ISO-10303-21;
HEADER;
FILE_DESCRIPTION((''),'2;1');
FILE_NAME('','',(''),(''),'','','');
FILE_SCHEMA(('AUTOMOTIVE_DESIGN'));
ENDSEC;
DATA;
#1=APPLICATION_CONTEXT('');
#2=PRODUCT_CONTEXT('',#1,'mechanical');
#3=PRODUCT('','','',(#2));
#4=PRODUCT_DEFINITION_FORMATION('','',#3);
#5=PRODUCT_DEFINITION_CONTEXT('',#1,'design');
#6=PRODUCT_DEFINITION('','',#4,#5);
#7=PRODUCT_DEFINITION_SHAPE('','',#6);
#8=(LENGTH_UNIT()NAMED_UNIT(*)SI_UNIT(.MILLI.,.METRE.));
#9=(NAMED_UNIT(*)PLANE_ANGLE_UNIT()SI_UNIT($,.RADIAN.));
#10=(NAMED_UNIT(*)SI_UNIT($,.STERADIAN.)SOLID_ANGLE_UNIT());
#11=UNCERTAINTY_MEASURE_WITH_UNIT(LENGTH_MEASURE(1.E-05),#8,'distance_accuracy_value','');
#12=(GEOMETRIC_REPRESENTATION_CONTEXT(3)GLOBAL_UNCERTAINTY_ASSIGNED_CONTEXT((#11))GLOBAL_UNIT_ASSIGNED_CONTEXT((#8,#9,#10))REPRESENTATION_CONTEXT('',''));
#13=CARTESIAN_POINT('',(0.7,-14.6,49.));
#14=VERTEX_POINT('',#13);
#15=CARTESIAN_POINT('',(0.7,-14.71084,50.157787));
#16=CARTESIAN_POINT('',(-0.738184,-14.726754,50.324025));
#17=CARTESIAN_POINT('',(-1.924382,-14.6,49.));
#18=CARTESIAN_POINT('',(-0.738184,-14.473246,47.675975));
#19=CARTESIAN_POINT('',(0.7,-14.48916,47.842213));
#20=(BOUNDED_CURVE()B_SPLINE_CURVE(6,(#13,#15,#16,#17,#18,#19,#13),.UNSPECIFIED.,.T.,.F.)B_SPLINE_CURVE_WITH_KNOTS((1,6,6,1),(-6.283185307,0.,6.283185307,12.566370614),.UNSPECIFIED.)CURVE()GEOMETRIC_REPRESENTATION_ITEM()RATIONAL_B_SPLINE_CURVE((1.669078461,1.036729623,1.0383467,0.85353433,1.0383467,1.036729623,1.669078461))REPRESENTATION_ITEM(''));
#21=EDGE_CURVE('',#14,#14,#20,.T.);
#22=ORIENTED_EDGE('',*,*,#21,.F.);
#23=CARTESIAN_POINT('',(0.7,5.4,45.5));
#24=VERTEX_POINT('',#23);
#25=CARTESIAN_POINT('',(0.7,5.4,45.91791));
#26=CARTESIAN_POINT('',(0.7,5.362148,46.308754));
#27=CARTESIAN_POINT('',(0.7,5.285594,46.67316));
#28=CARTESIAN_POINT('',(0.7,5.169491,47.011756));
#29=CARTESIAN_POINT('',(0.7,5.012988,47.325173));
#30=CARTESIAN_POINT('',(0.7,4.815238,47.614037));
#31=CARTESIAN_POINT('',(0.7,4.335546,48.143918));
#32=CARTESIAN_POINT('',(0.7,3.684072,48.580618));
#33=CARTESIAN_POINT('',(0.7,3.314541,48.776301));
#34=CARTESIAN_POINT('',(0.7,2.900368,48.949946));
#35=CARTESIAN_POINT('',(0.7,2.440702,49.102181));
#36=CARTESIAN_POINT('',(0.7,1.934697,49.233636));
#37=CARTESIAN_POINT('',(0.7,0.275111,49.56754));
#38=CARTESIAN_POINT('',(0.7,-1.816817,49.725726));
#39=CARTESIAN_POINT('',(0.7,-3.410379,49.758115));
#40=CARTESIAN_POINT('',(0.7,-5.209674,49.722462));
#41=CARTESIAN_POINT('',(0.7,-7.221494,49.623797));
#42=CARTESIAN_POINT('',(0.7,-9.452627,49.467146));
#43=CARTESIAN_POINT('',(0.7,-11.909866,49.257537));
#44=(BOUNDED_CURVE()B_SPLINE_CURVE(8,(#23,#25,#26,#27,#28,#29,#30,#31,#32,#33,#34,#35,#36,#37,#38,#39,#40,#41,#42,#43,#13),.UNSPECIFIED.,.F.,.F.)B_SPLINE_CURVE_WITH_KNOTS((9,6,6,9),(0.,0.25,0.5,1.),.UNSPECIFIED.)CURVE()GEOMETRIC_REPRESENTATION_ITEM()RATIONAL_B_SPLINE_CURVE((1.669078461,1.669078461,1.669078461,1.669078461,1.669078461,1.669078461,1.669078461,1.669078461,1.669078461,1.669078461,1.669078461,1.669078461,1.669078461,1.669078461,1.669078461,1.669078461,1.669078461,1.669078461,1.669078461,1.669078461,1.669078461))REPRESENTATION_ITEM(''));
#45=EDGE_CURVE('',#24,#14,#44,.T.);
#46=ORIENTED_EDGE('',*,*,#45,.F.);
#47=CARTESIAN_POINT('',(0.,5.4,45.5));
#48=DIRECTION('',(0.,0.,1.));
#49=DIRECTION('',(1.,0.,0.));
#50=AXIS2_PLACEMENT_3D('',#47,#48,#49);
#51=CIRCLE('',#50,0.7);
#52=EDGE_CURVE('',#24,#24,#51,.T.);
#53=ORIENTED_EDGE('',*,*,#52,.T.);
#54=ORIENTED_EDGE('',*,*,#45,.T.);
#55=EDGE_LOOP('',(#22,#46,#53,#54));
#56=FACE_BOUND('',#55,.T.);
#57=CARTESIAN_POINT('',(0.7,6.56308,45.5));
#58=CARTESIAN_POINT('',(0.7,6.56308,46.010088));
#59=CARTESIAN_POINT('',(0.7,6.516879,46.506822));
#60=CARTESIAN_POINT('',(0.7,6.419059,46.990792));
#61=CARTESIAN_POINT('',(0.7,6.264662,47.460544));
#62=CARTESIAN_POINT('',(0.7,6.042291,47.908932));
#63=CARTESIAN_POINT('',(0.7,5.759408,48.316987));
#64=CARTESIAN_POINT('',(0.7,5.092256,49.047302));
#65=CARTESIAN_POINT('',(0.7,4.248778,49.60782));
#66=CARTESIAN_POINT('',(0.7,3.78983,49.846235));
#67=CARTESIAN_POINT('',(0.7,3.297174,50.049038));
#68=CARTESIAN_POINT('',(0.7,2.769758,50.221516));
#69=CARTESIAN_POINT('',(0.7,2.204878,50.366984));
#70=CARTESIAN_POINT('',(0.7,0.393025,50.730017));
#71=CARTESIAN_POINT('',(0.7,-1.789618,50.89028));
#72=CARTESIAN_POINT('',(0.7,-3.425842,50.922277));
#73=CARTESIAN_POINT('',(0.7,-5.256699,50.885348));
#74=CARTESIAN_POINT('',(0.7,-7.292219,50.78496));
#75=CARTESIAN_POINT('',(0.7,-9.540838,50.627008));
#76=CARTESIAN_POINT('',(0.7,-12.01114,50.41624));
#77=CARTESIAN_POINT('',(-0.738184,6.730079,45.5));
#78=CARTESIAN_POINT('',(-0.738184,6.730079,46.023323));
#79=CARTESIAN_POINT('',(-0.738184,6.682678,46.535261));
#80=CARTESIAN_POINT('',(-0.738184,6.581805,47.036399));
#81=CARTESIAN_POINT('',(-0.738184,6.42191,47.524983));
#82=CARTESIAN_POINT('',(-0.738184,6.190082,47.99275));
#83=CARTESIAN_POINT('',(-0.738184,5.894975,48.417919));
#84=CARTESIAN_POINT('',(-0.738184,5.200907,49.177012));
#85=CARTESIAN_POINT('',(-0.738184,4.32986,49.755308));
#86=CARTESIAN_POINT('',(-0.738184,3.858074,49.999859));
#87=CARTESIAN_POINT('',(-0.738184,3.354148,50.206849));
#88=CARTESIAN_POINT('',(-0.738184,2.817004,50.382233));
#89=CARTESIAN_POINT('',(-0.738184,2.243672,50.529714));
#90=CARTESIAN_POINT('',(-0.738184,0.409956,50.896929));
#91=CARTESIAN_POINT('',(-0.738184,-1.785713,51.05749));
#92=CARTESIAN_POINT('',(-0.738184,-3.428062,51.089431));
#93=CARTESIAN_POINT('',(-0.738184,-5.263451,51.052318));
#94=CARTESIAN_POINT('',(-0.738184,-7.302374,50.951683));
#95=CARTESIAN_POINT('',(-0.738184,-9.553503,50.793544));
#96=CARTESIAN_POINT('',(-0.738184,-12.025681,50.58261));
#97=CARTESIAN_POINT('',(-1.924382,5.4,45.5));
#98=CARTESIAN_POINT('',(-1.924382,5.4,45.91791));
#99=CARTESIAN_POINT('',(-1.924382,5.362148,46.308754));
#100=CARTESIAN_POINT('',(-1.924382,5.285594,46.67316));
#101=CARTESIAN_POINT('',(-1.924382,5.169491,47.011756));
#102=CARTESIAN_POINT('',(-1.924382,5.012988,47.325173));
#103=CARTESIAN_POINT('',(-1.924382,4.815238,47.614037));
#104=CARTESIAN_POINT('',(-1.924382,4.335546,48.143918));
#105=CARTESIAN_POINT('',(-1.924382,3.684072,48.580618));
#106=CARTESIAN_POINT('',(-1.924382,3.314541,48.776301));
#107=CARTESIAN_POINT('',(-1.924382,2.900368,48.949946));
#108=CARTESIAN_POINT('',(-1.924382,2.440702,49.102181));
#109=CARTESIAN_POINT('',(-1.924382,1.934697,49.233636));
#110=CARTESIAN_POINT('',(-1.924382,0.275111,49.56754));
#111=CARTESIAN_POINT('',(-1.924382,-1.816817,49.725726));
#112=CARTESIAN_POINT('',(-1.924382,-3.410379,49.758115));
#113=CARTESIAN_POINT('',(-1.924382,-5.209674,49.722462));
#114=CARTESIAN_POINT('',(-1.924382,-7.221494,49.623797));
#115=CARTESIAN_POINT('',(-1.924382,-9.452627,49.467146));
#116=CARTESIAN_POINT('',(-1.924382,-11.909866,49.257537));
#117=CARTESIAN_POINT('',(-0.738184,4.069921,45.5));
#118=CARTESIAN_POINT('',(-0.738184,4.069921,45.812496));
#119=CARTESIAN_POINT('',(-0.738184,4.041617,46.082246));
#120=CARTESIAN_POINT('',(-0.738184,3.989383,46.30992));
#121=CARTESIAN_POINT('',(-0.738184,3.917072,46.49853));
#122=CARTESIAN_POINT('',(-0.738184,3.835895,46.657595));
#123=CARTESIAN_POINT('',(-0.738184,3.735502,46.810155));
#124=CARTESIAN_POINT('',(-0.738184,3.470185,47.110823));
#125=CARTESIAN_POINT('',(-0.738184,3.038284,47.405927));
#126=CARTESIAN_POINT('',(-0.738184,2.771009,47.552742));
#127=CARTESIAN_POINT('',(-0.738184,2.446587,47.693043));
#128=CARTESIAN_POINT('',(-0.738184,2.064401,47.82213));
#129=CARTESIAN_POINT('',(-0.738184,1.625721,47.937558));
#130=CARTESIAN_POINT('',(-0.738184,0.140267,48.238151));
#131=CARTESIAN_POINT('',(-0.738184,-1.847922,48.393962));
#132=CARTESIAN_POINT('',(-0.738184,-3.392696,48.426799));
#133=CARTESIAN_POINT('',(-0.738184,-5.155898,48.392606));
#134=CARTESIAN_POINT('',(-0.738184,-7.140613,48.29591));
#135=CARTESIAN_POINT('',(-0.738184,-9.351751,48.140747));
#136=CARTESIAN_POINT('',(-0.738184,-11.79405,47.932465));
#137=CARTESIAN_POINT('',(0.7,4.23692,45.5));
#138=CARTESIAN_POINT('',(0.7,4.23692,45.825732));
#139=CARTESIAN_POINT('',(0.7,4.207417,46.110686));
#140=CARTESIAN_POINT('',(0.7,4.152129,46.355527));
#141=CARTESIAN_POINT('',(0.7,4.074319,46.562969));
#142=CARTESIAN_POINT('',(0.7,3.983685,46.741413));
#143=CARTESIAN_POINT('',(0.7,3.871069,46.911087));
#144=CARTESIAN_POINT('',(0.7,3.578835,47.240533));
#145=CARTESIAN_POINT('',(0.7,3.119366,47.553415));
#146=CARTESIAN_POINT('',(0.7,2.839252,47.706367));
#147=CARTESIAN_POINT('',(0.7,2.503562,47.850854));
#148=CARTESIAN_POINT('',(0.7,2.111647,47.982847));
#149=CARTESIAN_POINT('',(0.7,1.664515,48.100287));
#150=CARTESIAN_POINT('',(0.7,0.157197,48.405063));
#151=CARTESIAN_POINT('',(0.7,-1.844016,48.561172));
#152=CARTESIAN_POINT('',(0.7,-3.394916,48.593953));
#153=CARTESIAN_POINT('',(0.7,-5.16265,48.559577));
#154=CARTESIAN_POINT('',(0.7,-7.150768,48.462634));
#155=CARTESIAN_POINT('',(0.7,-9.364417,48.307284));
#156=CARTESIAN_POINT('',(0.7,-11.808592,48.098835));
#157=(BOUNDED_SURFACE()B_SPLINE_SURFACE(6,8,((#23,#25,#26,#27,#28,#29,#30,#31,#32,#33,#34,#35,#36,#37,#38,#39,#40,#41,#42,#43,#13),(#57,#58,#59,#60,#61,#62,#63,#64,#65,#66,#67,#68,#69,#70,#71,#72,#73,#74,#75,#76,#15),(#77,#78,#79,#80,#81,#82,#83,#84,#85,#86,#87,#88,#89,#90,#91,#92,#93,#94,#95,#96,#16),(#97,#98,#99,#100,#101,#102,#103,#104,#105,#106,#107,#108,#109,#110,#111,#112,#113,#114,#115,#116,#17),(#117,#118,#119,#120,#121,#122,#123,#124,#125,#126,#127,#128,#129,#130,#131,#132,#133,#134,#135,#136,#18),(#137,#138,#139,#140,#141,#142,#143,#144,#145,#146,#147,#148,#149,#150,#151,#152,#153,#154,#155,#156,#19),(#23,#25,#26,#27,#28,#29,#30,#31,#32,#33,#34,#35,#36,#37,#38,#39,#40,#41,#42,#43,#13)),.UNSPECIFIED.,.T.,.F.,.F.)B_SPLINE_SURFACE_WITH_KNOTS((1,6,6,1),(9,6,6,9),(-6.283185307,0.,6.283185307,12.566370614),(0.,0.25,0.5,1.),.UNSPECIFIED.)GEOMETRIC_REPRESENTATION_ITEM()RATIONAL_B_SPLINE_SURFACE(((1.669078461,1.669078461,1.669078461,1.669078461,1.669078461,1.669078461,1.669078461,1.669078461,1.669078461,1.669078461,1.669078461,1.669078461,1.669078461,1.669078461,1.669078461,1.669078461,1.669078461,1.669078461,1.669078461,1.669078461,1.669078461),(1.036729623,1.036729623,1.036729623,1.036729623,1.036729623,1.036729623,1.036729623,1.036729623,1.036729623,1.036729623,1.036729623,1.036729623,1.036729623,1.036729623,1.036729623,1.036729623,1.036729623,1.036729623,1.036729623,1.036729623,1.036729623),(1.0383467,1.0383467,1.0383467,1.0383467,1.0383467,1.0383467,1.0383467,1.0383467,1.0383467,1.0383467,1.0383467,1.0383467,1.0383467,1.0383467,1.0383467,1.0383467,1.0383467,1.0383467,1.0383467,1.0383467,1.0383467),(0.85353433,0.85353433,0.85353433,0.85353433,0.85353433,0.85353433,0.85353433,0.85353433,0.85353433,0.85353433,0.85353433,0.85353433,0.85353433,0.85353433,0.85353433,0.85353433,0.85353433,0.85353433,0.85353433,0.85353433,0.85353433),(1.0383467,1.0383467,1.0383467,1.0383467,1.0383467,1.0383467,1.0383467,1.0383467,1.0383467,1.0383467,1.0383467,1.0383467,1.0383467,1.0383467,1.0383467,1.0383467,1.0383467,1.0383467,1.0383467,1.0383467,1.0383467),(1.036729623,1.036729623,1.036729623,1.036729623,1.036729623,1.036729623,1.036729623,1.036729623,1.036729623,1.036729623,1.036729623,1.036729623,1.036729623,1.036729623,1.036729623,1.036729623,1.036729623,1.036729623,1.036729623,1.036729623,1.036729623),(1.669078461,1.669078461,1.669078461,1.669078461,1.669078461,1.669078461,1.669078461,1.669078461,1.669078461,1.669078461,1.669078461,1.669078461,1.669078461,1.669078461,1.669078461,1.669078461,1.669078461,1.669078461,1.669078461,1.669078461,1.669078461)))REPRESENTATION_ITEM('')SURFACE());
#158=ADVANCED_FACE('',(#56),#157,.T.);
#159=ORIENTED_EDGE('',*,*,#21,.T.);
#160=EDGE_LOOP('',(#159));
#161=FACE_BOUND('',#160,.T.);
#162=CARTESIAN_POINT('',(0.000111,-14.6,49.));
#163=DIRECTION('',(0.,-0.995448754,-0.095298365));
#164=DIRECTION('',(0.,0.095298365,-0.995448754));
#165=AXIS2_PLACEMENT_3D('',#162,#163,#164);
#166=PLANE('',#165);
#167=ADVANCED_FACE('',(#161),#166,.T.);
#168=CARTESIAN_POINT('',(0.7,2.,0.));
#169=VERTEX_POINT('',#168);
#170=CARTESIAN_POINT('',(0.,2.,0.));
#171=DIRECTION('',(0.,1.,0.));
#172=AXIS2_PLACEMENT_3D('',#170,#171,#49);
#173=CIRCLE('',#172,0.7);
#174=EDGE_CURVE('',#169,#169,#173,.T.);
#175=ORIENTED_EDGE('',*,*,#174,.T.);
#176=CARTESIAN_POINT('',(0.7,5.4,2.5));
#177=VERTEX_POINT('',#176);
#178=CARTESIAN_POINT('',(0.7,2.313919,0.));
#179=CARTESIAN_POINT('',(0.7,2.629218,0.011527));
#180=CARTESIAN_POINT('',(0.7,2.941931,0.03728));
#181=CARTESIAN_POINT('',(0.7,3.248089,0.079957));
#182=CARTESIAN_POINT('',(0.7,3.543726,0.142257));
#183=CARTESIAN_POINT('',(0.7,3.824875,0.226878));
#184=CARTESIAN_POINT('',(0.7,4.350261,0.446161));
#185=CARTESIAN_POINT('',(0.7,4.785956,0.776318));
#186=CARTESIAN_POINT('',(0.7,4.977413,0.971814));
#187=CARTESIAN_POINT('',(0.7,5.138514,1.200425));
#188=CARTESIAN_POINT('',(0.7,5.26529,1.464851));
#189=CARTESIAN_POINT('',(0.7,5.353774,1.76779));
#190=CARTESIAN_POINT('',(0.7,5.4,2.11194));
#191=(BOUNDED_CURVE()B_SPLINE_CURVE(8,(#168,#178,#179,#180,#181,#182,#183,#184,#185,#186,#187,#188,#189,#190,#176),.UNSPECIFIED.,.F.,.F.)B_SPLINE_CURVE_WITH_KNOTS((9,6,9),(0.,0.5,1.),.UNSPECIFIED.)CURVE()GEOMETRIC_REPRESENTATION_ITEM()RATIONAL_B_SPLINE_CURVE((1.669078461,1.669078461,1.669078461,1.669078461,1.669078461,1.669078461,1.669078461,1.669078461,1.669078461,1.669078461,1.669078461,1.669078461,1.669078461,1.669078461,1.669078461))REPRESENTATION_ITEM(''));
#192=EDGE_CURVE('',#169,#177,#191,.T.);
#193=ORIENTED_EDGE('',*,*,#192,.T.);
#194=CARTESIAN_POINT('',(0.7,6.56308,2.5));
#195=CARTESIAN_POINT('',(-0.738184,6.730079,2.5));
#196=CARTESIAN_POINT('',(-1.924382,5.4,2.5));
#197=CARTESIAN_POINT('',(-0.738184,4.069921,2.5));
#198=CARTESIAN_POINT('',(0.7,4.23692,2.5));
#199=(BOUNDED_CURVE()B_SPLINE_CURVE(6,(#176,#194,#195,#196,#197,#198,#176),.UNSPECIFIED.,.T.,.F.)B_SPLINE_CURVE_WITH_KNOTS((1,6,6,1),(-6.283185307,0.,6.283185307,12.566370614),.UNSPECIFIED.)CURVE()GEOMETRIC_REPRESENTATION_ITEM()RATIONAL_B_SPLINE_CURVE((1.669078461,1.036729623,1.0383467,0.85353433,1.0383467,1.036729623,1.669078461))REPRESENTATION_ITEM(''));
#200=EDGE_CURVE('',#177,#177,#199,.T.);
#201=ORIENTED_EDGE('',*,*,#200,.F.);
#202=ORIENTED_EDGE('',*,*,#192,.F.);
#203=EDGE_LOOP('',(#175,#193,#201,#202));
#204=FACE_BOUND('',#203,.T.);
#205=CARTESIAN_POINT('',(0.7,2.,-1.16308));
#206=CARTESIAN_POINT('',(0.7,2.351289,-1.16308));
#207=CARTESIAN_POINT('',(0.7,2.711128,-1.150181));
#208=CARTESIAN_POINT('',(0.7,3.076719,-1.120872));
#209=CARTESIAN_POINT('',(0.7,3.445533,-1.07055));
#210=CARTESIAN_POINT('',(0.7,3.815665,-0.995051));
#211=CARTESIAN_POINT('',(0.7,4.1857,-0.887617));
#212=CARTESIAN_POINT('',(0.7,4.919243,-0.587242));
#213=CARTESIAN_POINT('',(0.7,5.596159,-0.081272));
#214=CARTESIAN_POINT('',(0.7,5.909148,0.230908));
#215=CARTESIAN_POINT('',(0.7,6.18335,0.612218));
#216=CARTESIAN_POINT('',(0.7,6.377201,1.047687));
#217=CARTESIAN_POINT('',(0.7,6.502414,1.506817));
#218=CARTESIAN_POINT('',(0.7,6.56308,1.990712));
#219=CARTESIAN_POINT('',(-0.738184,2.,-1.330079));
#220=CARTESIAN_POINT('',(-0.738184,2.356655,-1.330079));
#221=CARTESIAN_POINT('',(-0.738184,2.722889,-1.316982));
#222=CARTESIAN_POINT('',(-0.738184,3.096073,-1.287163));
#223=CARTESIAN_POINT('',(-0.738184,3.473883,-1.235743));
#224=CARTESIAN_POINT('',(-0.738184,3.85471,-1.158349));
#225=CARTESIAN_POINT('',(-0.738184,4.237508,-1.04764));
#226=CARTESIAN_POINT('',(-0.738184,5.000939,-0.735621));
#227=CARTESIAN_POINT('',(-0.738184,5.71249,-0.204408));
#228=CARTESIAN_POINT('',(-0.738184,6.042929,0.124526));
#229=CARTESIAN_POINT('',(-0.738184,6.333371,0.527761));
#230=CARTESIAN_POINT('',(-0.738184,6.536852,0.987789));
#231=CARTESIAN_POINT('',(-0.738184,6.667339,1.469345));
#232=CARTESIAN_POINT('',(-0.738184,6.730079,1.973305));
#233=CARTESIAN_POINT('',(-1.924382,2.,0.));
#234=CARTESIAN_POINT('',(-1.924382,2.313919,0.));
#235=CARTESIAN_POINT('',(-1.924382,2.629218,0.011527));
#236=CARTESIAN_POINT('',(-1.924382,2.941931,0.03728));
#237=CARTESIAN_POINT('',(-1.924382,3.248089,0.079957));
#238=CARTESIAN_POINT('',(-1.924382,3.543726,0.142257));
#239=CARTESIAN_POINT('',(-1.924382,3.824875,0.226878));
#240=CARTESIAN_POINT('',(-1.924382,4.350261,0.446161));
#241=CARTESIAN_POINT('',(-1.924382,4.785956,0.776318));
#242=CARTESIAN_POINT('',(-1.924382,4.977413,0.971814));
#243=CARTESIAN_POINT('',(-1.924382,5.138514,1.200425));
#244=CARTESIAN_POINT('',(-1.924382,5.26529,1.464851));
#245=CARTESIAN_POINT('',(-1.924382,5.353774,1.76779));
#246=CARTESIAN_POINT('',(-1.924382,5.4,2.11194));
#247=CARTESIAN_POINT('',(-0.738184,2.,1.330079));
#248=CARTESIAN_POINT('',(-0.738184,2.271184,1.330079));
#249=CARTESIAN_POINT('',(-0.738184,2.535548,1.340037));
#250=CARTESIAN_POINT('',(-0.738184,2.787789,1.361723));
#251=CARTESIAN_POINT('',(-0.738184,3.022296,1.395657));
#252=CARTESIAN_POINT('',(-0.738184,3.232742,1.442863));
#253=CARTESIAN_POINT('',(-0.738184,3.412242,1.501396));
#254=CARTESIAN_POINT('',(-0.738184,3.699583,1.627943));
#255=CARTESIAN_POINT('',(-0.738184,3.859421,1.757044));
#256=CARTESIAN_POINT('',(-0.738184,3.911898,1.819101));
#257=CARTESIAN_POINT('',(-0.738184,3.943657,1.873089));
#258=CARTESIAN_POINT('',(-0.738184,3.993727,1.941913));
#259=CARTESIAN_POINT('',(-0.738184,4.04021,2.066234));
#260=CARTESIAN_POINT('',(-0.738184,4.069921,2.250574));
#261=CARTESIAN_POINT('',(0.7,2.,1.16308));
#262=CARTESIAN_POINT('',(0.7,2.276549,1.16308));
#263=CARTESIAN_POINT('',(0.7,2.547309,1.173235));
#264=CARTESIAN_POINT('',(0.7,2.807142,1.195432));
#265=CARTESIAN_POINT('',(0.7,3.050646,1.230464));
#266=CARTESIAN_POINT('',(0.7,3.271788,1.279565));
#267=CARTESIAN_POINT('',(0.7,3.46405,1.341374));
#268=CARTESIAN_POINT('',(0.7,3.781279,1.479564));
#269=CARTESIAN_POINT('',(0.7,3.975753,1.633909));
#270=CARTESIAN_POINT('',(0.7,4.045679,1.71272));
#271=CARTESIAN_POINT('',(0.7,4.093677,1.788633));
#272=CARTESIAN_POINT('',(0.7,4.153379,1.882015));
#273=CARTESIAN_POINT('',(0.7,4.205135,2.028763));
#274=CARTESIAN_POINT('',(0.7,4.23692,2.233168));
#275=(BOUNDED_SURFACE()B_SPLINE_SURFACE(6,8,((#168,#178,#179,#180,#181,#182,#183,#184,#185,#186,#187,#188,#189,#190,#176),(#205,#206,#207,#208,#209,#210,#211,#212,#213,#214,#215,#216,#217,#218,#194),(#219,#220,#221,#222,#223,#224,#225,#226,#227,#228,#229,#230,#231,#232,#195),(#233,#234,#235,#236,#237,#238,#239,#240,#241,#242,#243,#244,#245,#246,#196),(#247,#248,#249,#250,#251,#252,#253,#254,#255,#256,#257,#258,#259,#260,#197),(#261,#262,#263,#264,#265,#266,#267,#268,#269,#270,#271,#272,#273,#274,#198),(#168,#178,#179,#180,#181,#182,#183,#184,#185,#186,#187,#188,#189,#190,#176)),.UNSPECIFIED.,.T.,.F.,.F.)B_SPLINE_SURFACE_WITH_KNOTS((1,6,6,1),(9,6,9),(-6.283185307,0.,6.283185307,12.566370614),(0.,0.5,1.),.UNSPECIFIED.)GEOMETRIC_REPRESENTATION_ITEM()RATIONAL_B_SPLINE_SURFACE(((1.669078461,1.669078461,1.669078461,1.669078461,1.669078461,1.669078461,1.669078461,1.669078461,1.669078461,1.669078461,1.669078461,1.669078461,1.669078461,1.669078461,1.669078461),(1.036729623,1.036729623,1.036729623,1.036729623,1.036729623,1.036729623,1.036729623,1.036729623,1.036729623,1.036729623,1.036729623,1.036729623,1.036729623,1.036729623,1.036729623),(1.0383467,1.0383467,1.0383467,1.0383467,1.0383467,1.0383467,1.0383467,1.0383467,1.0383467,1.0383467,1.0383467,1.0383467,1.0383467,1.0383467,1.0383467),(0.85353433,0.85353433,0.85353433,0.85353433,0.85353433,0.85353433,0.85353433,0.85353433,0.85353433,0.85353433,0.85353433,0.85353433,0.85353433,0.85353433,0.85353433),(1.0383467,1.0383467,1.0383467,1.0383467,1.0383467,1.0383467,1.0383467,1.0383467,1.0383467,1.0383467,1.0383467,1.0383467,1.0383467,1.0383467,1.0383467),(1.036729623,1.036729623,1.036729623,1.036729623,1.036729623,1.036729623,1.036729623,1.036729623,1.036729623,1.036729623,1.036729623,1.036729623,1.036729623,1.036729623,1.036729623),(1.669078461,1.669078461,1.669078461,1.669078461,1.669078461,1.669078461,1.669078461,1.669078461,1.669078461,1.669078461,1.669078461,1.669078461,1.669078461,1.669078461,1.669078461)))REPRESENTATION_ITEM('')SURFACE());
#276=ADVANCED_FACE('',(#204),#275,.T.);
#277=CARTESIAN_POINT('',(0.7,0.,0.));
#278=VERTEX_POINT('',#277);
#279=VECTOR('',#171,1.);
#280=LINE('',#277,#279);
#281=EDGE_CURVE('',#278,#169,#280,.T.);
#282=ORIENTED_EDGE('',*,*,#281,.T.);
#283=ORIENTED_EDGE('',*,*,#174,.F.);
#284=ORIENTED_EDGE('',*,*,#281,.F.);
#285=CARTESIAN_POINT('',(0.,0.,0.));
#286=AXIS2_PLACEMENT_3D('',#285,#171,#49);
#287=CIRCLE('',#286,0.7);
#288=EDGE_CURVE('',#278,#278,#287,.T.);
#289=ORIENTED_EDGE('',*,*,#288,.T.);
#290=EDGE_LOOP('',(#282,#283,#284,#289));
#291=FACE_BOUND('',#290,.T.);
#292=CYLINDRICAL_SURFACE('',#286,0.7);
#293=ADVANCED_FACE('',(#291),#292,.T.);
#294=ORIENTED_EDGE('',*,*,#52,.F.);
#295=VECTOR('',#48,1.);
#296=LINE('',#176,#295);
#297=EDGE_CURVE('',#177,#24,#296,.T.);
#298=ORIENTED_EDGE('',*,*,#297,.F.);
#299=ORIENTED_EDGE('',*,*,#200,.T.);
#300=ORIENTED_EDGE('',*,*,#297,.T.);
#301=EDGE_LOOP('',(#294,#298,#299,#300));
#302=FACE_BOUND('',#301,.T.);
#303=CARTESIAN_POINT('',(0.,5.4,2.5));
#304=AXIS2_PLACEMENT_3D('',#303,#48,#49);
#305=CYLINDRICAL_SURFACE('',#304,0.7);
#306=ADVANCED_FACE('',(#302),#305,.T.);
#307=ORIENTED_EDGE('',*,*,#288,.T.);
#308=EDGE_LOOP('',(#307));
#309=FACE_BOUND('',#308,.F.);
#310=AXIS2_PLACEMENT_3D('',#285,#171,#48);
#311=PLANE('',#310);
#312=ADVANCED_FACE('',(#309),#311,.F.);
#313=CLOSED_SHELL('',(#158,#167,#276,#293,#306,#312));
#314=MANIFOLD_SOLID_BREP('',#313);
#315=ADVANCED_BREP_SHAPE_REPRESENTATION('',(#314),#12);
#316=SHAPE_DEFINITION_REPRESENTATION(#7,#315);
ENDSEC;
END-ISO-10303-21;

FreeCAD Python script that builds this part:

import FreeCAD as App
import Part
import Sketcher
from FreeCAD import Vector

doc = App.newDocument("Part")
body = doc.addObject("PartDesign::Body", "Body")

# Sketch on XZ plane
sketch1 = doc.addObject("Sketcher::SketchObject", "Sketch")
body.addObject(sketch1)
sketch1.AttachmentSupport = (doc.XZ_Plane, [""])
sketch1.MapMode = "FlatFace"
sketch1.addGeometry(Part.Circle(Vector(0, 0, 0), Vector(0, 0, 1), 0.7), False)
sketch1.addConstraint([
    Sketcher.Constraint("Coincident", 0, 3, -1, 1),
    Sketcher.Constraint("Diameter", 0, 1.4),
])

# Sketch on YZ plane
sketch2 = doc.addObject("Sketcher::SketchObject", "Sketch001")
body.addObject(sketch2)
sketch2.AttachmentSupport = (doc.YZ_Plane, [""])
sketch2.MapMode = "FlatFace"
sketch2.addGeometry([
    Part.LineSegment(Vector(0, 0, 0), Vector(2, 0, 0)),
    Part.BSplineCurve([Vector(2, 0, 0), Vector(3.674235, 0, 0), Vector(5.4, 0.430345, 0), Vector(5.4, 2.5, 0)], [4, 4], [0, 1], False, 3, [1, 1, 1, 1], False),
    Part.LineSegment(Vector(5.4, 2.5, 0), Vector(5.4, 45.5, 0)),
    Part.BSplineCurve([Vector(5.4, 45.5, 0), Vector(5.4, 49.957705, 0), Vector(-0.252618, 50.373533, 0), Vector(-14.6, 49, 0)], [4, 4], [0, 1], False, 3, [1, 1, 1, 1], False),
], False)
sketch2.addConstraint([
    Sketcher.Constraint("Block", 1),
    Sketcher.Constraint("Block", 3),
    Sketcher.Constraint("Coincident", 0, 2, 1, 1),
    Sketcher.Constraint("Coincident", 1, 2, 2, 1),
    Sketcher.Constraint("Coincident", 2, 2, 3, 1),
    Sketcher.Constraint("Horizontal", 0),
    Sketcher.Constraint("DistanceX", 0, 1, 0, 2, 2.0),
])
doc.recompute()

additivepipe = doc.addObject("PartDesign::AdditivePipe", "AdditivePipe")
body.addObject(additivepipe)
additivepipe.Profile = sketch1
additivepipe.Spine = (sketch2, ["Edge1", "Edge2", "Edge3", "Edge4"])

doc.recompute()
